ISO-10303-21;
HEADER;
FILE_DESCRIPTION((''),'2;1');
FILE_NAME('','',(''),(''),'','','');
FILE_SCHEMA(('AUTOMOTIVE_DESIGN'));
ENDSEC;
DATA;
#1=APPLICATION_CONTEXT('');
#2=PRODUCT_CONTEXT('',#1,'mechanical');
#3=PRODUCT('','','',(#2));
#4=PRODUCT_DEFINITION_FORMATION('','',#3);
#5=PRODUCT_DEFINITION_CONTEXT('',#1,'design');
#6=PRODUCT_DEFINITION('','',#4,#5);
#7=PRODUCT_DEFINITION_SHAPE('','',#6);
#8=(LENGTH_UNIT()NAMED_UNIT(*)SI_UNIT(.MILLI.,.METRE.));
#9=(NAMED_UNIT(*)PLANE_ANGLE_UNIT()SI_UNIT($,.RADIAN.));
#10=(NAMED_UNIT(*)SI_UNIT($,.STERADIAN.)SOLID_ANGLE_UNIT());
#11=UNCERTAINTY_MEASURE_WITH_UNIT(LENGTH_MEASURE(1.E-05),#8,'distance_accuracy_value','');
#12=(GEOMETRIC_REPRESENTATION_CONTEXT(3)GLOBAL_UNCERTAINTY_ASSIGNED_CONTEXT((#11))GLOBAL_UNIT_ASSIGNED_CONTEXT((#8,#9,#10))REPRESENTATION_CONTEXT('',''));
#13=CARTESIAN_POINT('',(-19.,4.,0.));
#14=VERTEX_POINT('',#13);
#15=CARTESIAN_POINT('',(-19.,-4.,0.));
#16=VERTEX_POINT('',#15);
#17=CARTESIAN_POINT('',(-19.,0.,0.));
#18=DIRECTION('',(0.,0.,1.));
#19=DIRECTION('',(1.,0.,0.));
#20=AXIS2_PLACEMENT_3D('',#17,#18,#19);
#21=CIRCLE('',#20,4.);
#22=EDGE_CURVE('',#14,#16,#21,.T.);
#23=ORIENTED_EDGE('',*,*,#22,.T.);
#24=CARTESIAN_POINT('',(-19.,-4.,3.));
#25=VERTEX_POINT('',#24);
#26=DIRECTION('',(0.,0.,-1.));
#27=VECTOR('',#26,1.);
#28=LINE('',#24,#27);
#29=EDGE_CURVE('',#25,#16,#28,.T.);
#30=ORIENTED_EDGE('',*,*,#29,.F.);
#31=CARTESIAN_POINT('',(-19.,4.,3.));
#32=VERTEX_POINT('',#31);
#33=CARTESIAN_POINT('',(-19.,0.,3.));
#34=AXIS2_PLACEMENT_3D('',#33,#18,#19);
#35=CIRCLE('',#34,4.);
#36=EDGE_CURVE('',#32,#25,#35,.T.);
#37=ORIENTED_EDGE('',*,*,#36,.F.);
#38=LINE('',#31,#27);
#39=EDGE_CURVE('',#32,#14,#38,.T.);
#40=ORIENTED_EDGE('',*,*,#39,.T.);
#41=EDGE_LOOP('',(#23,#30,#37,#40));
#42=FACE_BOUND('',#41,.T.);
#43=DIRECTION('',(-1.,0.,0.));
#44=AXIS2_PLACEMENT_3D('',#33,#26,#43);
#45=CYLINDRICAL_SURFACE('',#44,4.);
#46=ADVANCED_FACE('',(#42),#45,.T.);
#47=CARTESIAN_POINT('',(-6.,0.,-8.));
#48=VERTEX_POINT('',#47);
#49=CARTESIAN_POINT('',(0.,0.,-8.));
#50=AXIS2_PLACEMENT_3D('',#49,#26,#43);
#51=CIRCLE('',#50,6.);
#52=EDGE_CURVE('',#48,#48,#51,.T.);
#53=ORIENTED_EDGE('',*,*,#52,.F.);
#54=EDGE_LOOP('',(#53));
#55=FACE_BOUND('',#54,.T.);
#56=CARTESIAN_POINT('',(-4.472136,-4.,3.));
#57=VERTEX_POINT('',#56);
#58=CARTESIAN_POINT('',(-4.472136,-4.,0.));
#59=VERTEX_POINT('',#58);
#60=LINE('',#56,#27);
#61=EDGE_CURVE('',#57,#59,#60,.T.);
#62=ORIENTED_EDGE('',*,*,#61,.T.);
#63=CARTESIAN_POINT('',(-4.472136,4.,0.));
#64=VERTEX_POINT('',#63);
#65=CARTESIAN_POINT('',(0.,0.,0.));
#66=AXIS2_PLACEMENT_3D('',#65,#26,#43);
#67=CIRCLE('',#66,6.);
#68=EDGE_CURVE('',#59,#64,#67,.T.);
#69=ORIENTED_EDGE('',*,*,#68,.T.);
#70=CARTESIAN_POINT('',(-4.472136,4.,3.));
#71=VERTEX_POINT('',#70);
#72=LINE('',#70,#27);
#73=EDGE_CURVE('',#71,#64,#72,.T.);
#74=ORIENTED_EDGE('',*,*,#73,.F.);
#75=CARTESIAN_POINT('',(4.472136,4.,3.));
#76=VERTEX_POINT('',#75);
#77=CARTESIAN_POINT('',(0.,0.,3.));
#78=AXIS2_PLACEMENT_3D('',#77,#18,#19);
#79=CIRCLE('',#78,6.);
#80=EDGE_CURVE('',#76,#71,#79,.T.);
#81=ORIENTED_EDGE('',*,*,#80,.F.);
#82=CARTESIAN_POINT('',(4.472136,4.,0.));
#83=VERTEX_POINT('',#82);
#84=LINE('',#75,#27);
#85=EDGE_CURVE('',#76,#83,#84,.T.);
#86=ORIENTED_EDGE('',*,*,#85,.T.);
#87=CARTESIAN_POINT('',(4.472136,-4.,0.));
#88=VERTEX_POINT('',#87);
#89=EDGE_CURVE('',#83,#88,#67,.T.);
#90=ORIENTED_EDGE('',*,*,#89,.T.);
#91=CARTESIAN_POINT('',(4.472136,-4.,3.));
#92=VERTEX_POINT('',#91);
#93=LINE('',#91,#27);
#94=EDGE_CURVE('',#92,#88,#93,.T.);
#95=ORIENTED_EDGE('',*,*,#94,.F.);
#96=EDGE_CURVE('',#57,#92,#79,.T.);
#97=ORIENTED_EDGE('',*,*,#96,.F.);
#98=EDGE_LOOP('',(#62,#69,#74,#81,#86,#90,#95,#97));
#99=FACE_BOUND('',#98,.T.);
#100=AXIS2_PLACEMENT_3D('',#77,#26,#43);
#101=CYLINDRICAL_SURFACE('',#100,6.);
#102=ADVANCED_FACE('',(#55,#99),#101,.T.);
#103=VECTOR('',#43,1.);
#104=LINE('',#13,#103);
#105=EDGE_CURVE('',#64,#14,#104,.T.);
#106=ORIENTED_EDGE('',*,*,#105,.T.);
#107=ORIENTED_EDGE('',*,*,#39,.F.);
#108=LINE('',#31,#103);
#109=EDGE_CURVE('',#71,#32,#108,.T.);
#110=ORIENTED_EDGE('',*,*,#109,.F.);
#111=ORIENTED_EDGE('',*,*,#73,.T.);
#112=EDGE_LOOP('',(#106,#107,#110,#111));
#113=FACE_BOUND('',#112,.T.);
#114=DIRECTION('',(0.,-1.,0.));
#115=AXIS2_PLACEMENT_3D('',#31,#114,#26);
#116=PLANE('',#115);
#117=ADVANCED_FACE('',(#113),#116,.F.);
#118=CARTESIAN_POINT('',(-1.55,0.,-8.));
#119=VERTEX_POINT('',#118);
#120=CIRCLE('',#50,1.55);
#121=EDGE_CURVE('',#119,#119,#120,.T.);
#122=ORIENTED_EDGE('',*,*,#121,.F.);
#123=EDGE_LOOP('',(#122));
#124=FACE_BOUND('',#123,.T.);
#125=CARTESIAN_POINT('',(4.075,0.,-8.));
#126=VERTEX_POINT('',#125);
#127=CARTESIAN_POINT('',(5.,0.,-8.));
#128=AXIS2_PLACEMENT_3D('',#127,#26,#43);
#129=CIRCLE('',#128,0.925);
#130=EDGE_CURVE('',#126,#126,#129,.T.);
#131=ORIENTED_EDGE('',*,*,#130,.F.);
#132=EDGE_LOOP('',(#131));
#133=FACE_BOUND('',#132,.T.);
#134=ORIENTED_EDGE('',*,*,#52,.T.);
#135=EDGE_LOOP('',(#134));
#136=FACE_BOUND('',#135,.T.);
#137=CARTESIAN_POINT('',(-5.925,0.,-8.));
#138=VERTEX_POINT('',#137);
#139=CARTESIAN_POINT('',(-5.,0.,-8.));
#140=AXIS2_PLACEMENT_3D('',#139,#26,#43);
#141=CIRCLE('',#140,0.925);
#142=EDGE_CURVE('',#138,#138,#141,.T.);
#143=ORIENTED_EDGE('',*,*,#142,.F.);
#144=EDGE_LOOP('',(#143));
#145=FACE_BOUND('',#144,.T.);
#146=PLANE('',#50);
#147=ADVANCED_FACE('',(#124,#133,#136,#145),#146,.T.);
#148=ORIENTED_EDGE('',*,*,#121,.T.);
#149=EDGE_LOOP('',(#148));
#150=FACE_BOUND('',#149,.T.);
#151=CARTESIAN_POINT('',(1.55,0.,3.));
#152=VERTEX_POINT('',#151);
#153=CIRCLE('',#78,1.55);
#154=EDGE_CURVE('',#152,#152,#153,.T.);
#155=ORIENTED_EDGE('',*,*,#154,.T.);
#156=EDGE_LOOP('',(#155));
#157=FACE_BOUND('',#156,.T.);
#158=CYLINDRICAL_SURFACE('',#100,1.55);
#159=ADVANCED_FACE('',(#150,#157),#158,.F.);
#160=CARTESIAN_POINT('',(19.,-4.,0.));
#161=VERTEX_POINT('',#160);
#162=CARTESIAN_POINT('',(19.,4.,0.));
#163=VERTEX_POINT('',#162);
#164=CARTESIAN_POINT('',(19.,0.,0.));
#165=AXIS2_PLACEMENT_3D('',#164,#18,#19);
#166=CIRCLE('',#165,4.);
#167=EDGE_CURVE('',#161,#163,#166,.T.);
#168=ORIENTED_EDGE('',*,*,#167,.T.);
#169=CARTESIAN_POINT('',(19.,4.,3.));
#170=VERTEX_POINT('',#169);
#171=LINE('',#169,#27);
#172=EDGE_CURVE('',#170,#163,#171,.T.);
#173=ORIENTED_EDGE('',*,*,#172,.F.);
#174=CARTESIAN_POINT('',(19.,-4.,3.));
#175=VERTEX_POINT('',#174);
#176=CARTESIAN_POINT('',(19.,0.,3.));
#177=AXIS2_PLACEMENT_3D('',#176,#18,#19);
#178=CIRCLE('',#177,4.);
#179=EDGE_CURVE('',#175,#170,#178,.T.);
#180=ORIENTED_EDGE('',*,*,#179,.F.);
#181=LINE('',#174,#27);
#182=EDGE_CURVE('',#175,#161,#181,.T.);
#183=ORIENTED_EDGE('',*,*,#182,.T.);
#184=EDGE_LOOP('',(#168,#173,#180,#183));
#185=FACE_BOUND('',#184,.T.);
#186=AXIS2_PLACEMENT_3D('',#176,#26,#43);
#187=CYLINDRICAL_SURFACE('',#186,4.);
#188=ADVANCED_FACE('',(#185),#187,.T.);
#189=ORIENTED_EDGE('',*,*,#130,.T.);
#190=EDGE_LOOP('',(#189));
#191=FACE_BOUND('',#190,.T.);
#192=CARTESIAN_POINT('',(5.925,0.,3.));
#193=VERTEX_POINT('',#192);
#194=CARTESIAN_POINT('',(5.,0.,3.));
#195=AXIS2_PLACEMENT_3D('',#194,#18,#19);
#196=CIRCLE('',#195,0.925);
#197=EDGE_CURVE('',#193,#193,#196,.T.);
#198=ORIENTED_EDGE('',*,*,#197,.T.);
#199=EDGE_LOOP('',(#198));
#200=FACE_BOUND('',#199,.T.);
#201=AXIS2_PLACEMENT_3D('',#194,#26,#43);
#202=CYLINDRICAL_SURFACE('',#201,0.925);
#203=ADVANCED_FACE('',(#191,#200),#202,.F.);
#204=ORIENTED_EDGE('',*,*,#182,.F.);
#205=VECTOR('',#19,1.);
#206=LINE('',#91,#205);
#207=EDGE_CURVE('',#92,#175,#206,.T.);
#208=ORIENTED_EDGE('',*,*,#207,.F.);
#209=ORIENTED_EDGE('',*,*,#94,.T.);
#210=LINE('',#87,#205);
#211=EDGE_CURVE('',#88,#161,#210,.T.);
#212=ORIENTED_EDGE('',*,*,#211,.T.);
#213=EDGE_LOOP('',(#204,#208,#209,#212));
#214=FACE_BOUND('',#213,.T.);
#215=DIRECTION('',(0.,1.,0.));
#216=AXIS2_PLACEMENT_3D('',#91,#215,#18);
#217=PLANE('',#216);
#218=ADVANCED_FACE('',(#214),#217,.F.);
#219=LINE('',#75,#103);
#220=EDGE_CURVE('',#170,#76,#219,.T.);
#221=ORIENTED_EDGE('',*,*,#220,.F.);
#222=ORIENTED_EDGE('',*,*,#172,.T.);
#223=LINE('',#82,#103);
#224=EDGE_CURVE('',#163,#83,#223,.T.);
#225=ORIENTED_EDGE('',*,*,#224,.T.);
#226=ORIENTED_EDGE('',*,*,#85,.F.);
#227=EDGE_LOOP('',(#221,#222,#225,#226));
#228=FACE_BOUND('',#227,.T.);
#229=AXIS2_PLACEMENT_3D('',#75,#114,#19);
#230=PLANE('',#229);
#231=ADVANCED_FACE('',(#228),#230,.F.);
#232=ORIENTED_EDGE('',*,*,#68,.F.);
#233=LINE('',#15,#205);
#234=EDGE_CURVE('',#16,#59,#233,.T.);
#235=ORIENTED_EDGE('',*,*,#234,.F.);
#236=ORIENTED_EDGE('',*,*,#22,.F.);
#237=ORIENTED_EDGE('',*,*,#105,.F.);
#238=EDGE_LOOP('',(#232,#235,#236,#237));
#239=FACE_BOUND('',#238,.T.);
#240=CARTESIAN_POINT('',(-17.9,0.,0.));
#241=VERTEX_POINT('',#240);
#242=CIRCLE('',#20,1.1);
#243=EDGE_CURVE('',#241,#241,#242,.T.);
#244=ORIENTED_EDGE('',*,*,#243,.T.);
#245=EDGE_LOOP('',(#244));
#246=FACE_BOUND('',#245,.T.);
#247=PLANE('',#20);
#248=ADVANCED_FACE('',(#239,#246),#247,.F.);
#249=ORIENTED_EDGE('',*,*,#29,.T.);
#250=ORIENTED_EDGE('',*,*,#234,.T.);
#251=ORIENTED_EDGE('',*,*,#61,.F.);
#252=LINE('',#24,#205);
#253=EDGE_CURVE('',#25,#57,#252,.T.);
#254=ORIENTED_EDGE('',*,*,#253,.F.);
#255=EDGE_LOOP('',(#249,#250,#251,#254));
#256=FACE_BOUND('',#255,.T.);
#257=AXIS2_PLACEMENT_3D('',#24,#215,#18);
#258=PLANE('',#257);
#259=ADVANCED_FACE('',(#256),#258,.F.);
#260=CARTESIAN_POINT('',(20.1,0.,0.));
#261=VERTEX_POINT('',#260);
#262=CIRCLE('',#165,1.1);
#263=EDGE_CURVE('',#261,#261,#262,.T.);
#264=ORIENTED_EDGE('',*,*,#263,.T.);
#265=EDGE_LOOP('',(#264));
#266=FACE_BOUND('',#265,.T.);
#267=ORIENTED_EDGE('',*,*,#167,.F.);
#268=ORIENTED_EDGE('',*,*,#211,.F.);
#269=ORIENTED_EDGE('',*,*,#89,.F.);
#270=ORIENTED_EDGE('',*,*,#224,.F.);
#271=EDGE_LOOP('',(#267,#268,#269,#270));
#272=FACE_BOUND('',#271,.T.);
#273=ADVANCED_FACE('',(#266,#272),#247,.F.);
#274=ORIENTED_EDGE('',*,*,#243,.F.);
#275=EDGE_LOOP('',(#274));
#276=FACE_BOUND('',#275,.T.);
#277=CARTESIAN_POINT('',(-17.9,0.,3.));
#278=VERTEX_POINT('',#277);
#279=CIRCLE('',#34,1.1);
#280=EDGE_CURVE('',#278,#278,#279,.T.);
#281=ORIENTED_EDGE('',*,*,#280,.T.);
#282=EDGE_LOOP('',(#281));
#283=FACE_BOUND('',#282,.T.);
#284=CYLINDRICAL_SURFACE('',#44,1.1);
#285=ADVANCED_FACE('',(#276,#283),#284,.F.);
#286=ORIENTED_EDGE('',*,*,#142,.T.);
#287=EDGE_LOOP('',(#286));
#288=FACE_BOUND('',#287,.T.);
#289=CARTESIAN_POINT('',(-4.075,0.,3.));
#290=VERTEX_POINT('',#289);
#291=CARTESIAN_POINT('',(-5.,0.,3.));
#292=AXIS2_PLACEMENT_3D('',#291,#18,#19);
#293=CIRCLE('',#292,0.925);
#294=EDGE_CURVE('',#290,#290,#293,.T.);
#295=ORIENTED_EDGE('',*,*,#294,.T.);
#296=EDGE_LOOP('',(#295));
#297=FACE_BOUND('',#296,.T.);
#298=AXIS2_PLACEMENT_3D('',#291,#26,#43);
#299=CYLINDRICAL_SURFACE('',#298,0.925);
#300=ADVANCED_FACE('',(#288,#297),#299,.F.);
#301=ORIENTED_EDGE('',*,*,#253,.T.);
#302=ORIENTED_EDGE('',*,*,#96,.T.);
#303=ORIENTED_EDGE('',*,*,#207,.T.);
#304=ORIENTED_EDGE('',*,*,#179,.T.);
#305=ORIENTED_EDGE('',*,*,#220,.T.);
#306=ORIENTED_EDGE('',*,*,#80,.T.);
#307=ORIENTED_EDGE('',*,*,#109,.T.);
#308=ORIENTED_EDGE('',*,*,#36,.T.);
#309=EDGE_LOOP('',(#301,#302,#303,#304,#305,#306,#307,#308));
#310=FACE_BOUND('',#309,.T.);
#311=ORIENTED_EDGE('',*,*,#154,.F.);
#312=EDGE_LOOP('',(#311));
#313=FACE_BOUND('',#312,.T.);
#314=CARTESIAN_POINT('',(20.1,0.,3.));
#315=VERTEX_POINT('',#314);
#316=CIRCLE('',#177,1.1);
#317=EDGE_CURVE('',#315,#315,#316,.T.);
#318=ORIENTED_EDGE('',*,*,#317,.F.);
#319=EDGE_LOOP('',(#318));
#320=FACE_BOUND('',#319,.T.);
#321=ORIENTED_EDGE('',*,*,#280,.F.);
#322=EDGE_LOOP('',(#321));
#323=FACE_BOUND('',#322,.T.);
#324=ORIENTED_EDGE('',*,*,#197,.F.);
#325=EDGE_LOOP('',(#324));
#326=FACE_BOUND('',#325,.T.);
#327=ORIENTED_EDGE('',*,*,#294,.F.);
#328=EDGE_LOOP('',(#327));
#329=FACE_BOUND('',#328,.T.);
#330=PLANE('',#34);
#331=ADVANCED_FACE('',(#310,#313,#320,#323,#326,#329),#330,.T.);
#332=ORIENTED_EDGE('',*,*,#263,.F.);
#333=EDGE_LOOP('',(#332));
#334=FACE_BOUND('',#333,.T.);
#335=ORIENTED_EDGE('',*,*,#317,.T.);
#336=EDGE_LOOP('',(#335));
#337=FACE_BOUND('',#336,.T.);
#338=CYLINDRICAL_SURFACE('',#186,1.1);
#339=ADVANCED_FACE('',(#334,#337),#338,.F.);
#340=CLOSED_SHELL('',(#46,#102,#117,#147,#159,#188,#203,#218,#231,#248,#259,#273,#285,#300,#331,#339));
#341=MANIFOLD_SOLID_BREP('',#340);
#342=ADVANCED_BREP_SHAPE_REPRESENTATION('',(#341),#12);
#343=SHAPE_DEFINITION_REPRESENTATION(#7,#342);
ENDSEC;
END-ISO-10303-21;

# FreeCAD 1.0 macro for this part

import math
import FreeCAD as App
import Part
import Sketcher
Q = App.Units.Quantity

doc = App.newDocument("Part")
body = doc.addObject("PartDesign::Body", "Body")

# Sketch on XY plane
sketch1 = body.newObject("Sketcher::SketchObject", "Sketch")
sketch1.AttachmentSupport = (doc.getObject("XY_Plane"), [""])
sketch1.MapMode = "FlatFace"
sketch1.addGeometry([
    Part.LineSegment(App.Vector(19, 4, 0), App.Vector(4.5, 4, 0)),  # 0
    Part.ArcOfCircle(Part.Circle(App.Vector(0, 0, 0), App.Vector(0, 0, 1), 6), math.radians(42), math.radians(138)),  # 1
    Part.LineSegment(App.Vector(-4.5, 4, 0), App.Vector(-19, 4, 0)),  # 2
    Part.ArcOfCircle(Part.Circle(App.Vector(-19, 0, 0), App.Vector(0, 0, 1), 4), math.radians(90), math.radians(270)),  # 3
    Part.LineSegment(App.Vector(-19, -4, 0), App.Vector(-4.5, -4, 0)),  # 4
    Part.ArcOfCircle(Part.Circle(App.Vector(0, 0, 0), App.Vector(0, 0, 1), 6), math.radians(-138), math.radians(-42)),  # 5
    Part.LineSegment(App.Vector(4.5, -4, 0), App.Vector(19, -4, 0)),  # 6
    Part.ArcOfCircle(Part.Circle(App.Vector(19, 0, 0), App.Vector(0, 0, 1), 4), math.radians(-90), math.radians(90)),  # 7
    Part.Circle(App.Vector(19, 0, 0), App.Vector(0, 0, 1), 1.1),  # 8
    Part.Circle(App.Vector(5, 0, 0), App.Vector(0, 0, 1), 0.9),  # 9
    Part.Circle(App.Vector(0, 0, 0), App.Vector(0, 0, 1), 1.6),  # 10
    Part.Circle(App.Vector(-5, 0, 0), App.Vector(0, 0, 1), 0.9),  # 11
    Part.Circle(App.Vector(-19, 0, 0), App.Vector(0, 0, 1), 1.1),  # 12
], False)
sketch1.addConstraint([
    Sketcher.Constraint("Coincident", 0, 2, 1, 1),
    Sketcher.Constraint("Coincident", 1, 2, 2, 1),
    Sketcher.Constraint("Tangent", 2, 2, 3, 1),
    Sketcher.Constraint("Tangent", 3, 2, 4, 1),
    Sketcher.Constraint("Coincident", 4, 2, 5, 1),
    Sketcher.Constraint("Coincident", 5, 2, 6, 1),
    Sketcher.Constraint("Tangent", 6, 2, 7, 1),
    Sketcher.Constraint("Tangent", 7, 2, 0, 1),
    Sketcher.Constraint("Horizontal", 0),
    Sketcher.Constraint("Horizontal", 2),
    Sketcher.Constraint("Horizontal", 4),
    Sketcher.Constraint("Horizontal", 6),
    Sketcher.Constraint("Coincident", 1, 3, -1, 1),
    Sketcher.Constraint("Coincident", 5, 3, -1, 1),
    Sketcher.Constraint("Coincident", 10, 3, -1, 1),
    Sketcher.Constraint("Coincident", 8, 3, 7, 3),
    Sketcher.Constraint("Coincident", 12, 3, 3, 3),
    Sketcher.Constraint("Equal", 1, 5),
    Sketcher.Constraint("Equal", 3, 7),
    Sketcher.Constraint("Equal", 9, 11),
    Sketcher.Constraint("Equal", 8, 12),
    Sketcher.Constraint("Symmetric", 3, 3, 7, 3, -1, 1),
    Sketcher.Constraint("Symmetric", 9, 3, 11, 3, -1, 1),
    Sketcher.Constraint("PointOnObject", 3, 3, -1),
    Sketcher.Constraint("PointOnObject", 9, 3, -1),
    Sketcher.Constraint("Radius", 1, Q("6 mm")),
    Sketcher.Constraint("Radius", 3, Q("4 mm")),
    Sketcher.Constraint("Diameter", 8, Q("2.2 mm")),
    Sketcher.Constraint("Diameter", 10, Q("3.1 mm")),
    Sketcher.Constraint("Diameter", 9, Q("1.85 mm")),
    Sketcher.Constraint("DistanceX", 3, 3, -1, 1, Q("19 mm")),
    Sketcher.Constraint("DistanceX", -1, 1, 9, 3, Q("5 mm")),
])
pad1 = body.newObject("PartDesign::Pad", "Pad")
pad1.Profile = sketch1
pad1.Length = 3

# Sketch on XY plane
sketch2 = body.newObject("Sketcher::SketchObject", "Sketch001")
sketch2.AttachmentSupport = (doc.getObject("XY_Plane"), [""])
sketch2.MapMode = "FlatFace"
sketch2.AttachmentOffset = App.Placement(App.Vector(0, 0, -8), App.Rotation())
sketch2.addGeometry([
    Part.Circle(App.Vector(0, 0, 0), App.Vector(0, 0, 1), 6),
    Part.Circle(App.Vector(5, 0, 0), App.Vector(0, 0, 1), 0.9),
    Part.Circle(App.Vector(0, 0, 0), App.Vector(0, 0, 1), 1.6),
    Part.Circle(App.Vector(-5, 0, 0), App.Vector(0, 0, 1), 0.9),
], False)
sketch2.addConstraint([
    Sketcher.Constraint("Coincident", 0, 3, -1, 1),
    Sketcher.Constraint("Coincident", 2, 3, -1, 1),
    Sketcher.Constraint("Equal", 1, 3),
    Sketcher.Constraint("Symmetric", 1, 3, 3, 3, -1, 1),
    Sketcher.Constraint("PointOnObject", 1, 3, -1),
    Sketcher.Constraint("Diameter", 0, Q("12 mm")),
    Sketcher.Constraint("Diameter", 2, Q("3.1 mm")),
    Sketcher.Constraint("Diameter", 1, Q("1.85 mm")),
    Sketcher.Constraint("DistanceX", -1, 1, 1, 3, Q("5 mm")),
])
pad2 = body.newObject("PartDesign::Pad", "Pad001")
pad2.Profile = sketch2
pad2.Length = 8

doc.recompute()
